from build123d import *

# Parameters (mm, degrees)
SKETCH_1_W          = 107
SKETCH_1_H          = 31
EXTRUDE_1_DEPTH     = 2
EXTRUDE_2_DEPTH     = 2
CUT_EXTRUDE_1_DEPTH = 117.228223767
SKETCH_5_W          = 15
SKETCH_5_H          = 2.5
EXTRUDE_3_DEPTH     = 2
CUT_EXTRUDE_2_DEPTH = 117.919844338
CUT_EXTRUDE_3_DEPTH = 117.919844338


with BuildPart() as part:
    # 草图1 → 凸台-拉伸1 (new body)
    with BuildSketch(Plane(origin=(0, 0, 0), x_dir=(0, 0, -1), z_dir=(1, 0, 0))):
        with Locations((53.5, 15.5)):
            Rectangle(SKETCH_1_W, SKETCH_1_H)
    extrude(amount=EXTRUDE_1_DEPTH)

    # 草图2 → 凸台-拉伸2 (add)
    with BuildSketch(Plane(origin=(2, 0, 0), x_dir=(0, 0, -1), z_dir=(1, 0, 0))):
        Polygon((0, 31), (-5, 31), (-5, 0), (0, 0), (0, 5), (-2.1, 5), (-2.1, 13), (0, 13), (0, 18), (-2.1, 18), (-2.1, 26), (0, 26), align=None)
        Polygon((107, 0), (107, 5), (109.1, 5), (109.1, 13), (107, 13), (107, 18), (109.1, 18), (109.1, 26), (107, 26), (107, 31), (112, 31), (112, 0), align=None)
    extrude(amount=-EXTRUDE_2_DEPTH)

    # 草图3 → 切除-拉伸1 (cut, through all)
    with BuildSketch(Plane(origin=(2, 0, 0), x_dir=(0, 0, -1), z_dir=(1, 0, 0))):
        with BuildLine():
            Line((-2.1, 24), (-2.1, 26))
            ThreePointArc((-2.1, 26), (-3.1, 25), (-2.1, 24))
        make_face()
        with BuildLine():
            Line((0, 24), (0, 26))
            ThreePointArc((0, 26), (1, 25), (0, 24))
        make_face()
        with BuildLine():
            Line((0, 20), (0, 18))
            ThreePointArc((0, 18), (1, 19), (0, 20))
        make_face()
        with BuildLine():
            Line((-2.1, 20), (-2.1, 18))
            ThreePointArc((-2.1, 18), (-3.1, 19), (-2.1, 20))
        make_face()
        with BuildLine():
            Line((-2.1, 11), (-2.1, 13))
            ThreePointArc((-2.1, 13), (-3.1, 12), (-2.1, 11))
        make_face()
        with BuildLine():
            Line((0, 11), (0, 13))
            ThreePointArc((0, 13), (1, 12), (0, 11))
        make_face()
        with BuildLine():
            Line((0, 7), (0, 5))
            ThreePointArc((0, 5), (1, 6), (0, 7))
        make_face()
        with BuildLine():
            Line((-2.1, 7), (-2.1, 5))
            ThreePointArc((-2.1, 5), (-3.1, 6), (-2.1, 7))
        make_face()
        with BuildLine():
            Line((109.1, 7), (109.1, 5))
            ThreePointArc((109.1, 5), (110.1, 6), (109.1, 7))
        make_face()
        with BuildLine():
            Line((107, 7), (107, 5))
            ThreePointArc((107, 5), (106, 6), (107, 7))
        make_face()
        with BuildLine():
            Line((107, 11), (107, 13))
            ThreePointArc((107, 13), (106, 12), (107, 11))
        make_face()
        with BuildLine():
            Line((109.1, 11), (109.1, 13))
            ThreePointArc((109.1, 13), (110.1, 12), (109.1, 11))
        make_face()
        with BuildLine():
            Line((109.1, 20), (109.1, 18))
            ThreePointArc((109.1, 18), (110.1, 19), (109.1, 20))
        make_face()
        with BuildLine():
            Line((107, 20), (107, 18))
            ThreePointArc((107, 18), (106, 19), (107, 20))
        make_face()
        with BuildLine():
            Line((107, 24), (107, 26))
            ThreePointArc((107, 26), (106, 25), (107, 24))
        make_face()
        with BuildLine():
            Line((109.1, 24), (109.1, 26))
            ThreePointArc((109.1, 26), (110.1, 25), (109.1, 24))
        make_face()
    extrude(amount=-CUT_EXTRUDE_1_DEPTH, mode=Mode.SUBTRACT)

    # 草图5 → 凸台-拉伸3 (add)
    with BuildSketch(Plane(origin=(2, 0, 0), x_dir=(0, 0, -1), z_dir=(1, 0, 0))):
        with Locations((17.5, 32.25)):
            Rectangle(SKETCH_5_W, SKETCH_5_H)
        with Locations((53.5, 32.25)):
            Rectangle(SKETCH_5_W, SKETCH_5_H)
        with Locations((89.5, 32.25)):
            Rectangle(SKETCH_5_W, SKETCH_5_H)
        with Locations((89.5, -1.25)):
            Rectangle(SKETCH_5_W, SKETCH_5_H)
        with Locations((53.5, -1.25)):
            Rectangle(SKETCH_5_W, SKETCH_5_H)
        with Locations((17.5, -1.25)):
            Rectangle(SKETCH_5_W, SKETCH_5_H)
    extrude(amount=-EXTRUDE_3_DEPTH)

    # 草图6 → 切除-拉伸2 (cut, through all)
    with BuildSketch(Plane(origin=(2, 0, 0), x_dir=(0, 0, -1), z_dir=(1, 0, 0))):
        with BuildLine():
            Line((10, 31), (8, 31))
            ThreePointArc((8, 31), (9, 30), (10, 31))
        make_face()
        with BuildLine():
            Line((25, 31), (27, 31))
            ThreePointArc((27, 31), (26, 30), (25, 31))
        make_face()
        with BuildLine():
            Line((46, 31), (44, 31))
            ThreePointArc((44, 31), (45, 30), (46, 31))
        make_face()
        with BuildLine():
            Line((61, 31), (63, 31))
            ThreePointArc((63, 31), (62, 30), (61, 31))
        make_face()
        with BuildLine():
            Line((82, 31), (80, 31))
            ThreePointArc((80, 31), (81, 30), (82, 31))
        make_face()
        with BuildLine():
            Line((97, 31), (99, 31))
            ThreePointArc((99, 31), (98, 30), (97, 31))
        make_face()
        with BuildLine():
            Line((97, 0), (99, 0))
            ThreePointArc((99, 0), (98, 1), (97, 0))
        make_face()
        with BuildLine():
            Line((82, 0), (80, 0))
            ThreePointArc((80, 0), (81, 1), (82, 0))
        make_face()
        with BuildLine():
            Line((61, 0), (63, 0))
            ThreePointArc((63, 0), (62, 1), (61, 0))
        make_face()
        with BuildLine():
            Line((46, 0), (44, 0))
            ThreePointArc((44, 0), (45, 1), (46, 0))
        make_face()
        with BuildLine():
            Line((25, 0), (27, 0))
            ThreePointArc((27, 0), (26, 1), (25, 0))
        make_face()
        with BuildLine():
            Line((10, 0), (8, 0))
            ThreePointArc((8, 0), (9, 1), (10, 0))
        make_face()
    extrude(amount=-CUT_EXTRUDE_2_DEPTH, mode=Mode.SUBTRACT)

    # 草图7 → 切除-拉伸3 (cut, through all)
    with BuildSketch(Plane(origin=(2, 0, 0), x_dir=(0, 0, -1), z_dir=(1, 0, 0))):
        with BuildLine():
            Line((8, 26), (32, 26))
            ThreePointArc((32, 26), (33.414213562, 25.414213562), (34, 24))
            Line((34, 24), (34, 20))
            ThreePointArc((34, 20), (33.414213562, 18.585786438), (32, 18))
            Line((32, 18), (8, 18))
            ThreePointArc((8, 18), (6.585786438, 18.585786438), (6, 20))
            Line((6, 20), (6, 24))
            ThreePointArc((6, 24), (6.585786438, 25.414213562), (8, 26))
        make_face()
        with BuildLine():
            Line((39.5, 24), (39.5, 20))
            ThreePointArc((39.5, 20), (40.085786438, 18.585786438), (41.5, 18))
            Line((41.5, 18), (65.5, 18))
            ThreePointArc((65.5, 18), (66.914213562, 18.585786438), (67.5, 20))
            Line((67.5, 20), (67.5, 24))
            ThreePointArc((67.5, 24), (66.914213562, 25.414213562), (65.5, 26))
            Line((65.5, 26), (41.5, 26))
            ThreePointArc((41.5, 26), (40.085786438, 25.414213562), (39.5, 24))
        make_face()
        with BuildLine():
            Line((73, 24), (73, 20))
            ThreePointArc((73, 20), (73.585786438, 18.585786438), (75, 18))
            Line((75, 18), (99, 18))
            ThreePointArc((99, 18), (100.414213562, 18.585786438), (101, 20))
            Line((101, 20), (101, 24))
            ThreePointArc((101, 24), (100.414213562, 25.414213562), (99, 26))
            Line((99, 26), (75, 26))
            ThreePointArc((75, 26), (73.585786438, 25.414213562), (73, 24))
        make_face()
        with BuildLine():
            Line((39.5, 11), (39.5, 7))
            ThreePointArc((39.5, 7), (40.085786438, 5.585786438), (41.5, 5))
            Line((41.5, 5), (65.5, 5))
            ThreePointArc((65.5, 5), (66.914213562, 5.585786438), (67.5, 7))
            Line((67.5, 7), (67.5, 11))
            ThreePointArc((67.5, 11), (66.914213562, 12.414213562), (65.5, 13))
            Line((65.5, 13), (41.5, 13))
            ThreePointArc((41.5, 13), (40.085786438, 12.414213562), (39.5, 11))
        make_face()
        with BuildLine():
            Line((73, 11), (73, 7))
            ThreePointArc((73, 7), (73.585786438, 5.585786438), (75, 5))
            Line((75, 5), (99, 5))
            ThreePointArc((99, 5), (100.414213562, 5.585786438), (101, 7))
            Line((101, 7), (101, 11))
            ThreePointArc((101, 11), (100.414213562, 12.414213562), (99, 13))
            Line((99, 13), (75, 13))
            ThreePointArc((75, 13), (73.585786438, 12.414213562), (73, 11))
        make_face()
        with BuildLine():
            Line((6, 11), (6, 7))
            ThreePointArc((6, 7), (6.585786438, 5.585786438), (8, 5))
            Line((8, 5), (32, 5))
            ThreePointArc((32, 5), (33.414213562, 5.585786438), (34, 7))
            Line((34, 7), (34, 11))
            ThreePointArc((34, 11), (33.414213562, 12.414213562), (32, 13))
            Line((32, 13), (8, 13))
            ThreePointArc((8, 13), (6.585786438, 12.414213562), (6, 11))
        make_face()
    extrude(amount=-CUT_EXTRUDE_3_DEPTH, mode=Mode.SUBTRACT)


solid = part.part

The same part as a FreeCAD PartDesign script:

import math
import FreeCAD as App
import Part
import Sketcher
Q = App.Units.Quantity

doc = App.newDocument("Part")
body = doc.addObject("PartDesign::Body", "Body")

# Sketch on YZ plane
sketch1 = doc.addObject("Sketcher::SketchObject", "Sketch")
body.addObject(sketch1)
sketch1.AttachmentSupport = (doc.YZ_Plane, [""])
sketch1.MapMode = "FlatFace"
sketch1.addGeometry([
    Part.LineSegment(App.Vector(31, 0, 0), App.Vector(0, 0, 0)),
    Part.LineSegment(App.Vector(0, 0, 0), App.Vector(0, -107, 0)),
    Part.LineSegment(App.Vector(0, -107, 0), App.Vector(31, -107, 0)),
    Part.LineSegment(App.Vector(31, -107, 0), App.Vector(31, 0, 0)),
], False)
sketch1.addConstraint([
    Sketcher.Constraint("Coincident", 0, 2, 1, 1),
    Sketcher.Constraint("Coincident", 1, 2, 2, 1),
    Sketcher.Constraint("Coincident", 2, 2, 3, 1),
    Sketcher.Constraint("Coincident", 3, 2, 0, 1),
    Sketcher.Constraint("Horizontal", 0),
    Sketcher.Constraint("Vertical", 1),
    Sketcher.Constraint("Horizontal", 2),
    Sketcher.Constraint("Vertical", 3),
    Sketcher.Constraint("Coincident", 0, 2, -1, 1),
    Sketcher.Constraint("DistanceX", 0, 2, 0, 1, Q("31 mm")),
    Sketcher.Constraint("DistanceY", 1, 2, 1, 1, Q("107 mm")),
])
pad1 = doc.addObject("PartDesign::Pad", "Pad")
body.addObject(pad1)
pad1.Profile = sketch1
pad1.Length = 2

# Sketch on YZ plane
sketch2 = doc.addObject("Sketcher::SketchObject", "Sketch001")
body.addObject(sketch2)
sketch2.AttachmentSupport = (doc.YZ_Plane, [""])
sketch2.MapMode = "FlatFace"
sketch2.AttachmentOffset = App.Placement(App.Vector(0, 0, 2), App.Rotation())
sketch2.addGeometry([
    Part.LineSegment(App.Vector(31, 0, 0), App.Vector(31, 5, 0)),  # 0
    Part.LineSegment(App.Vector(31, 5, 0), App.Vector(0, 5, 0)),  # 1
    Part.LineSegment(App.Vector(0, 5, 0), App.Vector(0, 0, 0)),  # 2
    Part.LineSegment(App.Vector(0, 0, 0), App.Vector(5, 0, 0)),  # 3
    Part.LineSegment(App.Vector(5, 0, 0), App.Vector(5, 2.1, 0)),  # 4
    Part.LineSegment(App.Vector(5, 2.1, 0), App.Vector(13, 2.1, 0)),  # 5
    Part.LineSegment(App.Vector(13, 2.1, 0), App.Vector(13, 0, 0)),  # 6
    Part.LineSegment(App.Vector(13, 0, 0), App.Vector(18, 0, 0)),  # 7
    Part.LineSegment(App.Vector(18, 0, 0), App.Vector(18, 2.1, 0)),  # 8
    Part.LineSegment(App.Vector(18, 2.1, 0), App.Vector(26, 2.1, 0)),  # 9
    Part.LineSegment(App.Vector(26, 2.1, 0), App.Vector(26, 0, 0)),  # 10
    Part.LineSegment(App.Vector(26, 0, 0), App.Vector(31, 0, 0)),  # 11
    Part.LineSegment(App.Vector(5, -107, 0), App.Vector(0, -107, 0)),  # 12
    Part.LineSegment(App.Vector(0, -107, 0), App.Vector(0, -112, 0)),  # 13
    Part.LineSegment(App.Vector(0, -112, 0), App.Vector(31, -112, 0)),  # 14
    Part.LineSegment(App.Vector(31, -112, 0), App.Vector(31, -107, 0)),  # 15
    Part.LineSegment(App.Vector(31, -107, 0), App.Vector(26, -107, 0)),  # 16
    Part.LineSegment(App.Vector(26, -107, 0), App.Vector(26, -109.1, 0)),  # 17
    Part.LineSegment(App.Vector(26, -109.1, 0), App.Vector(18, -109.1, 0)),  # 18
    Part.LineSegment(App.Vector(18, -109.1, 0), App.Vector(18, -107, 0)),  # 19
    Part.LineSegment(App.Vector(18, -107, 0), App.Vector(13, -107, 0)),  # 20
    Part.LineSegment(App.Vector(13, -107, 0), App.Vector(13, -109.1, 0)),  # 21
    Part.LineSegment(App.Vector(13, -109.1, 0), App.Vector(5, -109.1, 0)),  # 22
    Part.LineSegment(App.Vector(5, -109.1, 0), App.Vector(5, -107, 0)),  # 23
], False)
sketch2.addConstraint([
    Sketcher.Constraint("Coincident", 0, 2, 1, 1),
    Sketcher.Constraint("Coincident", 1, 2, 2, 1),
    Sketcher.Constraint("Coincident", 2, 2, 3, 1),
    Sketcher.Constraint("Coincident", 3, 2, 4, 1),
    Sketcher.Constraint("Coincident", 4, 2, 5, 1),
    Sketcher.Constraint("Coincident", 5, 2, 6, 1),
    Sketcher.Constraint("Coincident", 6, 2, 7, 1),
    Sketcher.Constraint("Coincident", 7, 2, 8, 1),
    Sketcher.Constraint("Coincident", 8, 2, 9, 1),
    Sketcher.Constraint("Coincident", 9, 2, 10, 1),
    Sketcher.Constraint("Coincident", 10, 2, 11, 1),
    Sketcher.Constraint("Coincident", 11, 2, 0, 1),
    Sketcher.Constraint("Coincident", 12, 2, 13, 1),
    Sketcher.Constraint("Coincident", 13, 2, 14, 1),
    Sketcher.Constraint("Coincident", 14, 2, 15, 1),
    Sketcher.Constraint("Coincident", 15, 2, 16, 1),
    Sketcher.Constraint("Coincident", 16, 2, 17, 1),
    Sketcher.Constraint("Coincident", 17, 2, 18, 1),
    Sketcher.Constraint("Coincident", 18, 2, 19, 1),
    Sketcher.Constraint("Coincident", 19, 2, 20, 1),
    Sketcher.Constraint("Coincident", 20, 2, 21, 1),
    Sketcher.Constraint("Coincident", 21, 2, 22, 1),
    Sketcher.Constraint("Coincident", 22, 2, 23, 1),
    Sketcher.Constraint("Coincident", 23, 2, 12, 1),
    Sketcher.Constraint("Vertical", 0),
    Sketcher.Constraint("Horizontal", 1),
    Sketcher.Constraint("Vertical", 2),
    Sketcher.Constraint("Horizontal", 3),
    Sketcher.Constraint("Vertical", 4),
    Sketcher.Constraint("Horizontal", 5),
    Sketcher.Constraint("Vertical", 6),
    Sketcher.Constraint("Horizontal", 7),
    Sketcher.Constraint("Vertical", 8),
    Sketcher.Constraint("Horizontal", 9),
    Sketcher.Constraint("Vertical", 10),
    Sketcher.Constraint("Horizontal", 11),
    Sketcher.Constraint("Horizontal", 12),
    Sketcher.Constraint("Vertical", 13),
    Sketcher.Constraint("Horizontal", 14),
    Sketcher.Constraint("Vertical", 15),
    Sketcher.Constraint("Horizontal", 16),
    Sketcher.Constraint("Vertical", 17),
    Sketcher.Constraint("Horizontal", 18),
    Sketcher.Constraint("Vertical", 19),
    Sketcher.Constraint("Horizontal", 20),
    Sketcher.Constraint("Vertical", 21),
    Sketcher.Constraint("Horizontal", 22),
    Sketcher.Constraint("Vertical", 23),
    Sketcher.Constraint("Coincident", 2, 2, -1, 1),
    Sketcher.Constraint("PointOnObject", 6, 2, -1),
    Sketcher.Constraint("PointOnObject", 10, 2, -1),
    Sketcher.Constraint("PointOnObject", 12, 2, -2),
    Sketcher.Constraint("Horizontal", 5, 2, 8, 2),
    Sketcher.Constraint("Horizontal", 12, 2, 15, 2),
    Sketcher.Constraint("Horizontal", 16, 2, 19, 2),
    Sketcher.Constraint("Horizontal", 18, 2, 21, 2),
    Sketcher.Constraint("Vertical", 11, 2, 14, 2),
    Sketcher.Constraint("Vertical", 10, 2, 16, 2),
    Sketcher.Constraint("Vertical", 8, 2, 18, 2),
    Sketcher.Constraint("Vertical", 6, 2, 20, 2),
    Sketcher.Constraint("Vertical", 4, 2, 22, 2),
    Sketcher.Constraint("Equal", 3, 7),
    Sketcher.Constraint("Equal", 5, 9),
    Sketcher.Constraint("Equal", 7, 11),
    Sketcher.Constraint("Equal", 20, 0),
    Sketcher.Constraint("Equal", 2, 13),
    Sketcher.Constraint("Equal", 10, 17),
    Sketcher.Constraint("DistanceX", 1, 2, 1, 1, Q("31 mm")),
    Sketcher.Constraint("DistanceX", 3, 1, 3, 2, Q("5 mm")),
    Sketcher.Constraint("DistanceY", 4, 1, 4, 2, Q("2.1 mm")),
    Sketcher.Constraint("DistanceY", 12, 2, -1, 1, Q("107 mm")),
])
pad2 = doc.addObject("PartDesign::Pad", "Pad001")
body.addObject(pad2)
pad2.Profile = sketch2
pad2.Length = 2
pad2.Reversed = True

# Sketch on YZ plane
sketch3 = doc.addObject("Sketcher::SketchObject", "Sketch002")
body.addObject(sketch3)
sketch3.AttachmentSupport = (doc.YZ_Plane, [""])
sketch3.MapMode = "FlatFace"
sketch3.AttachmentOffset = App.Placement(App.Vector(0, 0, 2), App.Rotation())
sketch3.addGeometry([
    Part.LineSegment(App.Vector(24, 2.1, 0), App.Vector(26, 2.1, 0)),  # 0
    Part.ArcOfCircle(Part.Circle(App.Vector(25, 2.1, 0), App.Vector(0, 0, 1), 1), math.radians(0), math.radians(180)),  # 1
    Part.LineSegment(App.Vector(26, 0, 0), App.Vector(24, 0, 0)),  # 2
    Part.ArcOfCircle(Part.Circle(App.Vector(25, 0, 0), App.Vector(0, 0, 1), 1), math.radians(180), math.radians(360)),  # 3
    Part.LineSegment(App.Vector(20, 0, 0), App.Vector(18, 0, 0)),  # 4
    Part.ArcOfCircle(Part.Circle(App.Vector(19, 0, 0), App.Vector(0, 0, 1), 1), math.radians(180), math.radians(360)),  # 5
    Part.LineSegment(App.Vector(18, 2.1, 0), App.Vector(20, 2.1, 0)),  # 6
    Part.ArcOfCircle(Part.Circle(App.Vector(19, 2.1, 0), App.Vector(0, 0, 1), 1), math.radians(0), math.radians(180)),  # 7
    Part.LineSegment(App.Vector(11, 2.1, 0), App.Vector(13, 2.1, 0)),  # 8
    Part.ArcOfCircle(Part.Circle(App.Vector(12, 2.1, 0), App.Vector(0, 0, 1), 1), math.radians(0), math.radians(180)),  # 9
    Part.LineSegment(App.Vector(13, 0, 0), App.Vector(11, 0, 0)),  # 10
    Part.ArcOfCircle(Part.Circle(App.Vector(12, 0, 0), App.Vector(0, 0, 1), 1), math.radians(180), math.radians(360)),  # 11
    Part.LineSegment(App.Vector(7, 0, 0), App.Vector(5, 0, 0)),  # 12
    Part.ArcOfCircle(Part.Circle(App.Vector(6, 0, 0), App.Vector(0, 0, 1), 1), math.radians(180), math.radians(360)),  # 13
    Part.LineSegment(App.Vector(5, 2.1, 0), App.Vector(7, 2.1, 0)),  # 14
    Part.ArcOfCircle(Part.Circle(App.Vector(6, 2.1, 0), App.Vector(0, 0, 1), 1), math.radians(0), math.radians(180)),  # 15
    Part.LineSegment(App.Vector(7, -109.1, 0), App.Vector(5, -109.1, 0)),  # 16
    Part.ArcOfCircle(Part.Circle(App.Vector(6, -109.1, 0), App.Vector(0, 0, 1), 1), math.radians(180), math.radians(360)),  # 17
    Part.LineSegment(App.Vector(5, -107, 0), App.Vector(7, -107, 0)),  # 18
    Part.ArcOfCircle(Part.Circle(App.Vector(6, -107, 0), App.Vector(0, 0, 1), 1), math.radians(0), math.radians(180)),  # 19
    Part.LineSegment(App.Vector(11, -107, 0), App.Vector(13, -107, 0)),  # 20
    Part.ArcOfCircle(Part.Circle(App.Vector(12, -107, 0), App.Vector(0, 0, 1), 1), math.radians(0), math.radians(180)),  # 21
    Part.LineSegment(App.Vector(13, -109.1, 0), App.Vector(11, -109.1, 0)),  # 22
    Part.ArcOfCircle(Part.Circle(App.Vector(12, -109.1, 0), App.Vector(0, 0, 1), 1), math.radians(180), math.radians(360)),  # 23
    Part.LineSegment(App.Vector(20, -109.1, 0), App.Vector(18, -109.1, 0)),  # 24
    Part.ArcOfCircle(Part.Circle(App.Vector(19, -109.1, 0), App.Vector(0, 0, 1), 1), math.radians(180), math.radians(360)),  # 25
    Part.LineSegment(App.Vector(18, -107, 0), App.Vector(20, -107, 0)),  # 26
    Part.ArcOfCircle(Part.Circle(App.Vector(19, -107, 0), App.Vector(0, 0, 1), 1), math.radians(0), math.radians(180)),  # 27
    Part.LineSegment(App.Vector(24, -107, 0), App.Vector(26, -107, 0)),  # 28
    Part.ArcOfCircle(Part.Circle(App.Vector(25, -107, 0), App.Vector(0, 0, 1), 1), math.radians(0), math.radians(180)),  # 29
    Part.LineSegment(App.Vector(26, -109.1, 0), App.Vector(24, -109.1, 0)),  # 30
    Part.ArcOfCircle(Part.Circle(App.Vector(25, -109.1, 0), App.Vector(0, 0, 1), 1), math.radians(180), math.radians(360)),  # 31
], False)
sketch3.addConstraint([
    Sketcher.Constraint("Coincident", 0, 1, 1, 2),
    Sketcher.Constraint("Coincident", 1, 1, 0, 2),
    Sketcher.Constraint("Coincident", 2, 1, 3, 2),
    Sketcher.Constraint("Coincident", 3, 1, 2, 2),
    Sketcher.Constraint("Coincident", 4, 1, 5, 2),
    Sketcher.Constraint("Coincident", 5, 1, 4, 2),
    Sketcher.Constraint("Coincident", 6, 1, 7, 2),
    Sketcher.Constraint("Coincident", 7, 1, 6, 2),
    Sketcher.Constraint("Coincident", 8, 1, 9, 2),
    Sketcher.Constraint("Coincident", 9, 1, 8, 2),
    Sketcher.Constraint("Coincident", 10, 1, 11, 2),
    Sketcher.Constraint("Coincident", 11, 1, 10, 2),
    Sketcher.Constraint("Coincident", 12, 1, 13, 2),
    Sketcher.Constraint("Coincident", 13, 1, 12, 2),
    Sketcher.Constraint("Coincident", 14, 1, 15, 2),
    Sketcher.Constraint("Coincident", 15, 1, 14, 2),
    Sketcher.Constraint("Coincident", 16, 1, 17, 2),
    Sketcher.Constraint("Coincident", 17, 1, 16, 2),
    Sketcher.Constraint("Coincident", 18, 1, 19, 2),
    Sketcher.Constraint("Coincident", 19, 1, 18, 2),
    Sketcher.Constraint("Coincident", 20, 1, 21, 2),
    Sketcher.Constraint("Coincident", 21, 1, 20, 2),
    Sketcher.Constraint("Coincident", 22, 1, 23, 2),
    Sketcher.Constraint("Coincident", 23, 1, 22, 2),
    Sketcher.Constraint("Coincident", 24, 1, 25, 2),
    Sketcher.Constraint("Coincident", 25, 1, 24, 2),
    Sketcher.Constraint("Coincident", 26, 1, 27, 2),
    Sketcher.Constraint("Coincident", 27, 1, 26, 2),
    Sketcher.Constraint("Coincident", 28, 1, 29, 2),
    Sketcher.Constraint("Coincident", 29, 1, 28, 2),
    Sketcher.Constraint("Coincident", 30, 1, 31, 2),
    Sketcher.Constraint("Coincident", 31, 1, 30, 2),
    Sketcher.Constraint("Horizontal", 0),
    Sketcher.Constraint("Horizontal", 2),
    Sketcher.Constraint("Horizontal", 4),
    Sketcher.Constraint("Horizontal", 6),
    Sketcher.Constraint("Horizontal", 8),
    Sketcher.Constraint("Horizontal", 10),
    Sketcher.Constraint("Horizontal", 12),
    Sketcher.Constraint("Horizontal", 14),
    Sketcher.Constraint("Horizontal", 16),
    Sketcher.Constraint("Horizontal", 18),
    Sketcher.Constraint("Horizontal", 20),
    Sketcher.Constraint("Horizontal", 22),
    Sketcher.Constraint("Horizontal", 24),
    Sketcher.Constraint("Horizontal", 26),
    Sketcher.Constraint("Horizontal", 28),
    Sketcher.Constraint("Horizontal", 30),
    Sketcher.Constraint("Equal", 1, 3),
    Sketcher.Constraint("Equal", 3, 5),
    Sketcher.Constraint("Equal", 5, 7),
    Sketcher.Constraint("Equal", 7, 9),
    Sketcher.Constraint("Equal", 9, 11),
    Sketcher.Constraint("Equal", 11, 13),
    Sketcher.Constraint("Equal", 13, 15),
    Sketcher.Constraint("Equal", 15, 17),
    Sketcher.Constraint("Equal", 17, 19),
    Sketcher.Constraint("Equal", 19, 21),
    Sketcher.Constraint("Equal", 21, 23),
    Sketcher.Constraint("Equal", 23, 25),
    Sketcher.Constraint("Equal", 25, 27),
    Sketcher.Constraint("Equal", 27, 29),
    Sketcher.Constraint("Equal", 29, 31),
    Sketcher.Constraint("PointOnObject", 3, 3, -1),
    Sketcher.Constraint("PointOnObject", 5, 3, -1),
    Sketcher.Constraint("PointOnObject", 11, 3, -1),
    Sketcher.Constraint("PointOnObject", 13, 3, -1),
    Sketcher.Constraint("PointOnObject", 2, 1, -1),
    Sketcher.Constraint("PointOnObject", 4, 1, -1),
    Sketcher.Constraint("PointOnObject", 10, 1, -1),
    Sketcher.Constraint("PointOnObject", 12, 1, -1),
    Sketcher.Constraint("Horizontal", 1, 3, 7, 3),
    Sketcher.Constraint("Horizontal", 7, 3, 9, 3),
    Sketcher.Constraint("Horizontal", 9, 3, 15, 3),
    Sketcher.Constraint("Horizontal", 19, 3, 21, 3),
    Sketcher.Constraint("Horizontal", 17, 3, 23, 3),
    Sketcher.Constraint("Horizontal", 23, 3, 25, 3),
    Sketcher.Constraint("Horizontal", 21, 3, 27, 3),
    Sketcher.Constraint("Horizontal", 27, 3, 29, 3),
    Sketcher.Constraint("Horizontal", 25, 3, 31, 3),
    Sketcher.Constraint("Horizontal", 15, 3, 0, 1),
    Sketcher.Constraint("Horizontal", 1, 1, 6, 1),
    Sketcher.Constraint("Horizontal", 7, 1, 8, 1),
    Sketcher.Constraint("Horizontal", 9, 1, 14, 1),
    Sketcher.Constraint("Horizontal", 31, 3, 16, 1),
    Sketcher.Constraint("Horizontal", 29, 3, 18, 1),
    Sketcher.Constraint("Horizontal", 19, 1, 20, 1),
    Sketcher.Constraint("Horizontal", 17, 1, 22, 1),
    Sketcher.Constraint("Horizontal", 23, 1, 24, 1),
    Sketcher.Constraint("Horizontal", 21, 1, 26, 1),
    Sketcher.Constraint("Horizontal", 27, 1, 28, 1),
    Sketcher.Constraint("Horizontal", 25, 1, 30, 1),
    Sketcher.Constraint("Vertical", 1, 3, 3, 3),
    Sketcher.Constraint("Vertical", 5, 3, 7, 3),
    Sketcher.Constraint("Vertical", 9, 3, 11, 3),
    Sketcher.Constraint("Vertical", 13, 3, 15, 3),
    Sketcher.Constraint("Vertical", 15, 3, 17, 3),
    Sketcher.Constraint("Vertical", 17, 3, 19, 3),
    Sketcher.Constraint("Vertical", 11, 3, 21, 3),
    Sketcher.Constraint("Vertical", 21, 3, 23, 3),
    Sketcher.Constraint("Vertical", 7, 3, 25, 3),
    Sketcher.Constraint("Vertical", 25, 3, 27, 3),
    Sketcher.Constraint("Vertical", 3, 3, 29, 3),
    Sketcher.Constraint("Vertical", 29, 3, 31, 3),
    Sketcher.Constraint("Radius", 1, Q("1 mm")),
    Sketcher.Constraint("DistanceX", -1, 1, 1, 3, Q("25 mm")),
    Sketcher.Constraint("DistanceX", -1, 1, 5, 3, Q("19 mm")),
    Sketcher.Constraint("DistanceX", -1, 1, 9, 3, Q("12 mm")),
    Sketcher.Constraint("DistanceX", -1, 1, 13, 3, Q("6 mm")),
    Sketcher.Constraint("DistanceY", 19, 3, -1, 1, Q("107 mm")),
    Sketcher.Constraint("DistanceY", -1, 1, 1, 3, Q("2.1 mm")),
    Sketcher.Constraint("DistanceY", 17, 3, -1, 1, Q("109.1 mm")),
])
pocket1 = doc.addObject("PartDesign::Pocket", "Pocket")
body.addObject(pocket1)
pocket1.Profile = sketch3
pocket1.Type = "ThroughAll"

# Sketch on YZ plane
sketch4 = doc.addObject("Sketcher::SketchObject", "Sketch003")
body.addObject(sketch4)
sketch4.AttachmentSupport = (doc.YZ_Plane, [""])
sketch4.MapMode = "FlatFace"
sketch4.AttachmentOffset = App.Placement(App.Vector(0, 0, 2), App.Rotation())
sketch4.addGeometry([
    Part.LineSegment(App.Vector(33.5, -10, 0), App.Vector(31, -10, 0)),  # 0
    Part.LineSegment(App.Vector(31, -10, 0), App.Vector(31, -25, 0)),  # 1
    Part.LineSegment(App.Vector(31, -25, 0), App.Vector(33.5, -25, 0)),  # 2
    Part.LineSegment(App.Vector(33.5, -25, 0), App.Vector(33.5, -10, 0)),  # 3
    Part.LineSegment(App.Vector(33.5, -46, 0), App.Vector(31, -46, 0)),  # 4
    Part.LineSegment(App.Vector(31, -46, 0), App.Vector(31, -61, 0)),  # 5
    Part.LineSegment(App.Vector(31, -61, 0), App.Vector(33.5, -61, 0)),  # 6
    Part.LineSegment(App.Vector(33.5, -61, 0), App.Vector(33.5, -46, 0)),  # 7
    Part.LineSegment(App.Vector(33.5, -82, 0), App.Vector(31, -82, 0)),  # 8
    Part.LineSegment(App.Vector(31, -82, 0), App.Vector(31, -97, 0)),  # 9
    Part.LineSegment(App.Vector(31, -97, 0), App.Vector(33.5, -97, 0)),  # 10
    Part.LineSegment(App.Vector(33.5, -97, 0), App.Vector(33.5, -82, 0)),  # 11
    Part.LineSegment(App.Vector(0, -82, 0), App.Vector(-2.5, -82, 0)),  # 12
    Part.LineSegment(App.Vector(-2.5, -82, 0), App.Vector(-2.5, -97, 0)),  # 13
    Part.LineSegment(App.Vector(-2.5, -97, 0), App.Vector(0, -97, 0)),  # 14
    Part.LineSegment(App.Vector(0, -97, 0), App.Vector(0, -82, 0)),  # 15
    Part.LineSegment(App.Vector(0, -46, 0), App.Vector(-2.5, -46, 0)),  # 16
    Part.LineSegment(App.Vector(-2.5, -46, 0), App.Vector(-2.5, -61, 0)),  # 17
    Part.LineSegment(App.Vector(-2.5, -61, 0), App.Vector(0, -61, 0)),  # 18
    Part.LineSegment(App.Vector(0, -61, 0), App.Vector(0, -46, 0)),  # 19
    Part.LineSegment(App.Vector(0, -10, 0), App.Vector(-2.5, -10, 0)),  # 20
    Part.LineSegment(App.Vector(-2.5, -10, 0), App.Vector(-2.5, -25, 0)),  # 21
    Part.LineSegment(App.Vector(-2.5, -25, 0), App.Vector(0, -25, 0)),  # 22
    Part.LineSegment(App.Vector(0, -25, 0), App.Vector(0, -10, 0)),  # 23
], False)
sketch4.addConstraint([
    Sketcher.Constraint("Coincident", 0, 2, 1, 1),
    Sketcher.Constraint("Coincident", 1, 2, 2, 1),
    Sketcher.Constraint("Coincident", 2, 2, 3, 1),
    Sketcher.Constraint("Coincident", 3, 2, 0, 1),
    Sketcher.Constraint("Coincident", 4, 2, 5, 1),
    Sketcher.Constraint("Coincident", 5, 2, 6, 1),
    Sketcher.Constraint("Coincident", 6, 2, 7, 1),
    Sketcher.Constraint("Coincident", 7, 2, 4, 1),
    Sketcher.Constraint("Coincident", 8, 2, 9, 1),
    Sketcher.Constraint("Coincident", 9, 2, 10, 1),
    Sketcher.Constraint("Coincident", 10, 2, 11, 1),
    Sketcher.Constraint("Coincident", 11, 2, 8, 1),
    Sketcher.Constraint("Coincident", 12, 2, 13, 1),
    Sketcher.Constraint("Coincident", 13, 2, 14, 1),
    Sketcher.Constraint("Coincident", 14, 2, 15, 1),
    Sketcher.Constraint("Coincident", 15, 2, 12, 1),
    Sketcher.Constraint("Coincident", 16, 2, 17, 1),
    Sketcher.Constraint("Coincident", 17, 2, 18, 1),
    Sketcher.Constraint("Coincident", 18, 2, 19, 1),
    Sketcher.Constraint("Coincident", 19, 2, 16, 1),
    Sketcher.Constraint("Coincident", 20, 2, 21, 1),
    Sketcher.Constraint("Coincident", 21, 2, 22, 1),
    Sketcher.Constraint("Coincident", 22, 2, 23, 1),
    Sketcher.Constraint("Coincident", 23, 2, 20, 1),
    Sketcher.Constraint("Horizontal", 0),
    Sketcher.Constraint("Vertical", 1),
    Sketcher.Constraint("Horizontal", 2),
    Sketcher.Constraint("Vertical", 3),
    Sketcher.Constraint("Horizontal", 4),
    Sketcher.Constraint("Vertical", 5),
    Sketcher.Constraint("Horizontal", 6),
    Sketcher.Constraint("Vertical", 7),
    Sketcher.Constraint("Horizontal", 8),
    Sketcher.Constraint("Vertical", 9),
    Sketcher.Constraint("Horizontal", 10),
    Sketcher.Constraint("Vertical", 11),
    Sketcher.Constraint("Horizontal", 12),
    Sketcher.Constraint("Vertical", 13),
    Sketcher.Constraint("Horizontal", 14),
    Sketcher.Constraint("Vertical", 15),
    Sketcher.Constraint("Horizontal", 16),
    Sketcher.Constraint("Vertical", 17),
    Sketcher.Constraint("Horizontal", 18),
    Sketcher.Constraint("Vertical", 19),
    Sketcher.Constraint("Horizontal", 20),
    Sketcher.Constraint("Vertical", 21),
    Sketcher.Constraint("Horizontal", 22),
    Sketcher.Constraint("Vertical", 23),
    Sketcher.Constraint("PointOnObject", 14, 2, -2),
    Sketcher.Constraint("PointOnObject", 18, 2, -2),
    Sketcher.Constraint("PointOnObject", 22, 2, -2),
    Sketcher.Constraint("Horizontal", 11, 2, 12, 2),
    Sketcher.Constraint("Horizontal", 10, 2, 13, 2),
    Sketcher.Constraint("Horizontal", 7, 2, 16, 2),
    Sketcher.Constraint("Horizontal", 6, 2, 17, 2),
    Sketcher.Constraint("Horizontal", 3, 2, 20, 2),
    Sketcher.Constraint("Horizontal", 2, 2, 21, 2),
    Sketcher.Constraint("Vertical", 1, 2, 4, 2),
    Sketcher.Constraint("Vertical", 3, 2, 6, 2),
    Sketcher.Constraint("Vertical", 5, 2, 8, 2),
    Sketcher.Constraint("Vertical", 7, 2, 10, 2),
    Sketcher.Constraint("Vertical", 13, 2, 16, 2),
    Sketcher.Constraint("Vertical", 17, 2, 20, 2),
    Sketcher.Constraint("Equal", 10, 12),
    Sketcher.Constraint("Equal", 3, 5),
    Sketcher.Constraint("Equal", 7, 9),
    Sketcher.Constraint("DistanceY", 1, 2, 1, 1, Q("15 mm")),
    Sketcher.Constraint("DistanceX", 0, 2, 0, 1, Q("2.5 mm")),
    Sketcher.Constraint("DistanceX", -1, 1, 0, 2, Q("31 mm")),
    Sketcher.Constraint("DistanceY", 0, 2, -1, 1, Q("10 mm")),
    Sketcher.Constraint("DistanceY", 4, 2, -1, 1, Q("46 mm")),
    Sketcher.Constraint("DistanceY", 8, 2, -1, 1, Q("82 mm")),
])
pad3 = doc.addObject("PartDesign::Pad", "Pad002")
body.addObject(pad3)
pad3.Profile = sketch4
pad3.Length = 2
pad3.Reversed = True

# Sketch on YZ plane
sketch5 = doc.addObject("Sketcher::SketchObject", "Sketch004")
body.addObject(sketch5)
sketch5.AttachmentSupport = (doc.YZ_Plane, [""])
sketch5.MapMode = "FlatFace"
sketch5.AttachmentOffset = App.Placement(App.Vector(0, 0, 2), App.Rotation())
sketch5.addGeometry([
    Part.LineSegment(App.Vector(31, -10, 0), App.Vector(31, -8, 0)),  # 0
    Part.ArcOfCircle(Part.Circle(App.Vector(31, -9, 0), App.Vector(0, 0, 1), 1), math.radians(90), math.radians(270)),  # 1
    Part.LineSegment(App.Vector(31, -27, 0), App.Vector(31, -25, 0)),  # 2
    Part.ArcOfCircle(Part.Circle(App.Vector(31, -26, 0), App.Vector(0, 0, 1), 1), math.radians(90), math.radians(270)),  # 3
    Part.LineSegment(App.Vector(31, -46, 0), App.Vector(31, -44, 0)),  # 4
    Part.ArcOfCircle(Part.Circle(App.Vector(31, -45, 0), App.Vector(0, 0, 1), 1), math.radians(90), math.radians(270)),  # 5
    Part.LineSegment(App.Vector(31, -63, 0), App.Vector(31, -61, 0)),  # 6
    Part.ArcOfCircle(Part.Circle(App.Vector(31, -62, 0), App.Vector(0, 0, 1), 1), math.radians(90), math.radians(270)),  # 7
    Part.LineSegment(App.Vector(31, -82, 0), App.Vector(31, -80, 0)),  # 8
    Part.ArcOfCircle(Part.Circle(App.Vector(31, -81, 0), App.Vector(0, 0, 1), 1), math.radians(90), math.radians(270)),  # 9
    Part.LineSegment(App.Vector(31, -99, 0), App.Vector(31, -97, 0)),  # 10
    Part.ArcOfCircle(Part.Circle(App.Vector(31, -98, 0), App.Vector(0, 0, 1), 1), math.radians(90), math.radians(270)),  # 11
    Part.LineSegment(App.Vector(0, -97, 0), App.Vector(0, -99, 0)),  # 12
    Part.ArcOfCircle(Part.Circle(App.Vector(0, -98, 0), App.Vector(0, 0, 1), 1), math.radians(-90), math.radians(90)),  # 13
    Part.LineSegment(App.Vector(0, -80, 0), App.Vector(0, -82, 0)),  # 14
    Part.ArcOfCircle(Part.Circle(App.Vector(0, -81, 0), App.Vector(0, 0, 1), 1), math.radians(-90), math.radians(90)),  # 15
    Part.LineSegment(App.Vector(0, -61, 0), App.Vector(0, -63, 0)),  # 16
    Part.ArcOfCircle(Part.Circle(App.Vector(0, -62, 0), App.Vector(0, 0, 1), 1), math.radians(-90), math.radians(90)),  # 17
    Part.LineSegment(App.Vector(0, -44, 0), App.Vector(0, -46, 0)),  # 18
    Part.ArcOfCircle(Part.Circle(App.Vector(0, -45, 0), App.Vector(0, 0, 1), 1), math.radians(-90), math.radians(90)),  # 19
    Part.LineSegment(App.Vector(0, -25, 0), App.Vector(0, -27, 0)),  # 20
    Part.ArcOfCircle(Part.Circle(App.Vector(0, -26, 0), App.Vector(0, 0, 1), 1), math.radians(-90), math.radians(90)),  # 21
    Part.LineSegment(App.Vector(0, -8, 0), App.Vector(0, -10, 0)),  # 22
    Part.ArcOfCircle(Part.Circle(App.Vector(0, -9, 0), App.Vector(0, 0, 1), 1), math.radians(-90), math.radians(90)),  # 23
], False)
sketch5.addConstraint([
    Sketcher.Constraint("Coincident", 0, 1, 1, 2),
    Sketcher.Constraint("Coincident", 1, 1, 0, 2),
    Sketcher.Constraint("Coincident", 2, 1, 3, 2),
    Sketcher.Constraint("Coincident", 3, 1, 2, 2),
    Sketcher.Constraint("Coincident", 4, 1, 5, 2),
    Sketcher.Constraint("Coincident", 5, 1, 4, 2),
    Sketcher.Constraint("Coincident", 6, 1, 7, 2),
    Sketcher.Constraint("Coincident", 7, 1, 6, 2),
    Sketcher.Constraint("Coincident", 8, 1, 9, 2),
    Sketcher.Constraint("Coincident", 9, 1, 8, 2),
    Sketcher.Constraint("Coincident", 10, 1, 11, 2),
    Sketcher.Constraint("Coincident", 11, 1, 10, 2),
    Sketcher.Constraint("Coincident", 12, 1, 13, 2),
    Sketcher.Constraint("Coincident", 13, 1, 12, 2),
    Sketcher.Constraint("Coincident", 14, 1, 15, 2),
    Sketcher.Constraint("Coincident", 15, 1, 14, 2),
    Sketcher.Constraint("Coincident", 16, 1, 17, 2),
    Sketcher.Constraint("Coincident", 17, 1, 16, 2),
    Sketcher.Constraint("Coincident", 18, 1, 19, 2),
    Sketcher.Constraint("Coincident", 19, 1, 18, 2),
    Sketcher.Constraint("Coincident", 20, 1, 21, 2),
    Sketcher.Constraint("Coincident", 21, 1, 20, 2),
    Sketcher.Constraint("Coincident", 22, 1, 23, 2),
    Sketcher.Constraint("Coincident", 23, 1, 22, 2),
    Sketcher.Constraint("Vertical", 0),
    Sketcher.Constraint("Vertical", 2),
    Sketcher.Constraint("Vertical", 4),
    Sketcher.Constraint("Vertical", 6),
    Sketcher.Constraint("Vertical", 8),
    Sketcher.Constraint("Vertical", 10),
    Sketcher.Constraint("Vertical", 12),
    Sketcher.Constraint("Vertical", 14),
    Sketcher.Constraint("Vertical", 16),
    Sketcher.Constraint("Vertical", 18),
    Sketcher.Constraint("Vertical", 20),
    Sketcher.Constraint("Vertical", 22),
    Sketcher.Constraint("Equal", 1, 3),
    Sketcher.Constraint("Equal", 3, 5),
    Sketcher.Constraint("Equal", 5, 7),
    Sketcher.Constraint("Equal", 7, 9),
    Sketcher.Constraint("Equal", 9, 11),
    Sketcher.Constraint("Equal", 11, 13),
    Sketcher.Constraint("Equal", 13, 15),
    Sketcher.Constraint("Equal", 15, 17),
    Sketcher.Constraint("Equal", 17, 19),
    Sketcher.Constraint("Equal", 19, 21),
    Sketcher.Constraint("Equal", 21, 23),
    Sketcher.Constraint("PointOnObject", 13, 3, -2),
    Sketcher.Constraint("PointOnObject", 15, 3, -2),
    Sketcher.Constraint("PointOnObject", 17, 3, -2),
    Sketcher.Constraint("PointOnObject", 19, 3, -2),
    Sketcher.Constraint("PointOnObject", 21, 3, -2),
    Sketcher.Constraint("PointOnObject", 23, 3, -2),
    Sketcher.Constraint("PointOnObject", 12, 1, -2),
    Sketcher.Constraint("PointOnObject", 14, 1, -2),
    Sketcher.Constraint("PointOnObject", 16, 1, -2),
    Sketcher.Constraint("PointOnObject", 18, 1, -2),
    Sketcher.Constraint("PointOnObject", 20, 1, -2),
    Sketcher.Constraint("PointOnObject", 22, 1, -2),
    Sketcher.Constraint("Horizontal", 11, 3, 13, 3),
    Sketcher.Constraint("Horizontal", 9, 3, 15, 3),
    Sketcher.Constraint("Horizontal", 7, 3, 17, 3),
    Sketcher.Constraint("Horizontal", 5, 3, 19, 3),
    Sketcher.Constraint("Horizontal", 3, 3, 21, 3),
    Sketcher.Constraint("Horizontal", 1, 3, 23, 3),
    Sketcher.Constraint("Vertical", 1, 3, 3, 3),
    Sketcher.Constraint("Vertical", 3, 3, 5, 3),
    Sketcher.Constraint("Vertical", 5, 3, 7, 3),
    Sketcher.Constraint("Vertical", 7, 3, 9, 3),
    Sketcher.Constraint("Vertical", 9, 3, 11, 3),
    Sketcher.Constraint("Vertical", 11, 3, 0, 1),
    Sketcher.Constraint("Vertical", 1, 1, 2, 1),
    Sketcher.Constraint("Vertical", 3, 1, 4, 1),
    Sketcher.Constraint("Vertical", 5, 1, 6, 1),
    Sketcher.Constraint("Vertical", 7, 1, 8, 1),
    Sketcher.Constraint("Vertical", 9, 1, 10, 1),
    Sketcher.Constraint("Radius", 1, Q("1 mm")),
    Sketcher.Constraint("DistanceX", -1, 1, 1, 3, Q("31 mm")),
    Sketcher.Constraint("DistanceY", 1, 3, -1, 1, Q("9 mm")),
    Sketcher.Constraint("DistanceY", 3, 3, -1, 1, Q("26 mm")),
    Sketcher.Constraint("DistanceY", 5, 3, -1, 1, Q("45 mm")),
    Sketcher.Constraint("DistanceY", 7, 3, -1, 1, Q("62 mm")),
    Sketcher.Constraint("DistanceY", 9, 3, -1, 1, Q("81 mm")),
    Sketcher.Constraint("DistanceY", 11, 3, -1, 1, Q("98 mm")),
])
pocket2 = doc.addObject("PartDesign::Pocket", "Pocket001")
body.addObject(pocket2)
pocket2.Profile = sketch5
pocket2.Type = "ThroughAll"

# Sketch on YZ plane
sketch6 = doc.addObject("Sketcher::SketchObject", "Sketch005")
body.addObject(sketch6)
sketch6.AttachmentSupport = (doc.YZ_Plane, [""])
sketch6.MapMode = "FlatFace"
sketch6.AttachmentOffset = App.Placement(App.Vector(0, 0, 2), App.Rotation())
sketch6.addGeometry([
    Part.LineSegment(App.Vector(26, -32, 0), App.Vector(26, -8, 0)),  # 0
    Part.ArcOfCircle(Part.Circle(App.Vector(24, -8, 0), App.Vector(0, 0, 1), 2), math.radians(0), math.radians(90)),  # 1
    Part.LineSegment(App.Vector(24, -6, 0), App.Vector(20, -6, 0)),  # 2
    Part.ArcOfCircle(Part.Circle(App.Vector(20, -8, 0), App.Vector(0, 0, 1), 2), math.radians(90), math.radians(180)),  # 3
    Part.LineSegment(App.Vector(18, -8, 0), App.Vector(18, -32, 0)),  # 4
    Part.ArcOfCircle(Part.Circle(App.Vector(20, -32, 0), App.Vector(0, 0, 1), 2), math.radians(-180), math.radians(-90)),  # 5
    Part.LineSegment(App.Vector(20, -34, 0), App.Vector(24, -34, 0)),  # 6
    Part.ArcOfCircle(Part.Circle(App.Vector(24, -32, 0), App.Vector(0, 0, 1), 2), math.radians(-90), math.radians(0)),  # 7
    Part.LineSegment(App.Vector(24, -39.5, 0), App.Vector(20, -39.5, 0)),  # 8
    Part.ArcOfCircle(Part.Circle(App.Vector(20, -41.5, 0), App.Vector(0, 0, 1), 2), math.radians(90), math.radians(180)),  # 9
    Part.LineSegment(App.Vector(18, -41.5, 0), App.Vector(18, -65.5, 0)),  # 10
    Part.ArcOfCircle(Part.Circle(App.Vector(20, -65.5, 0), App.Vector(0, 0, 1), 2), math.radians(-180), math.radians(-90)),  # 11
    Part.LineSegment(App.Vector(20, -67.5, 0), App.Vector(24, -67.5, 0)),  # 12
    Part.ArcOfCircle(Part.Circle(App.Vector(24, -65.5, 0), App.Vector(0, 0, 1), 2), math.radians(-90), math.radians(0)),  # 13
    Part.LineSegment(App.Vector(26, -65.5, 0), App.Vector(26, -41.5, 0)),  # 14
    Part.ArcOfCircle(Part.Circle(App.Vector(24, -41.5, 0), App.Vector(0, 0, 1), 2), math.radians(0), math.radians(90)),  # 15
    Part.LineSegment(App.Vector(24, -73, 0), App.Vector(20, -73, 0)),  # 16
    Part.ArcOfCircle(Part.Circle(App.Vector(20, -75, 0), App.Vector(0, 0, 1), 2), math.radians(90), math.radians(180)),  # 17
    Part.LineSegment(App.Vector(18, -75, 0), App.Vector(18, -99, 0)),  # 18
    Part.ArcOfCircle(Part.Circle(App.Vector(20, -99, 0), App.Vector(0, 0, 1), 2), math.radians(-180), math.radians(-90)),  # 19
    Part.LineSegment(App.Vector(20, -101, 0), App.Vector(24, -101, 0)),  # 20
    Part.ArcOfCircle(Part.Circle(App.Vector(24, -99, 0), App.Vector(0, 0, 1), 2), math.radians(-90), math.radians(0)),  # 21
    Part.LineSegment(App.Vector(26, -99, 0), App.Vector(26, -75, 0)),  # 22
    Part.ArcOfCircle(Part.Circle(App.Vector(24, -75, 0), App.Vector(0, 0, 1), 2), math.radians(0), math.radians(90)),  # 23
    Part.LineSegment(App.Vector(11, -39.5, 0), App.Vector(7, -39.5, 0)),  # 24
    Part.ArcOfCircle(Part.Circle(App.Vector(7, -41.5, 0), App.Vector(0, 0, 1), 2), math.radians(90), math.radians(180)),  # 25
    Part.LineSegment(App.Vector(5, -41.5, 0), App.Vector(5, -65.5, 0)),  # 26
    Part.ArcOfCircle(Part.Circle(App.Vector(7, -65.5, 0), App.Vector(0, 0, 1), 2), math.radians(-180), math.radians(-90)),  # 27
    Part.LineSegment(App.Vector(7, -67.5, 0), App.Vector(11, -67.5, 0)),  # 28
    Part.ArcOfCircle(Part.Circle(App.Vector(11, -65.5, 0), App.Vector(0, 0, 1), 2), math.radians(-90), math.radians(0)),  # 29
    Part.LineSegment(App.Vector(13, -65.5, 0), App.Vector(13, -41.5, 0)),  # 30
    Part.ArcOfCircle(Part.Circle(App.Vector(11, -41.5, 0), App.Vector(0, 0, 1), 2), math.radians(0), math.radians(90)),  # 31
    Part.LineSegment(App.Vector(11, -73, 0), App.Vector(7, -73, 0)),  # 32
    Part.ArcOfCircle(Part.Circle(App.Vector(7, -75, 0), App.Vector(0, 0, 1), 2), math.radians(90), math.radians(180)),  # 33
    Part.LineSegment(App.Vector(5, -75, 0), App.Vector(5, -99, 0)),  # 34
    Part.ArcOfCircle(Part.Circle(App.Vector(7, -99, 0), App.Vector(0, 0, 1), 2), math.radians(-180), math.radians(-90)),  # 35
    Part.LineSegment(App.Vector(7, -101, 0), App.Vector(11, -101, 0)),  # 36
    Part.ArcOfCircle(Part.Circle(App.Vector(11, -99, 0), App.Vector(0, 0, 1), 2), math.radians(-90), math.radians(0)),  # 37
    Part.LineSegment(App.Vector(13, -99, 0), App.Vector(13, -75, 0)),  # 38
    Part.ArcOfCircle(Part.Circle(App.Vector(11, -75, 0), App.Vector(0, 0, 1), 2), math.radians(0), math.radians(90)),  # 39
    Part.LineSegment(App.Vector(11, -6, 0), App.Vector(7, -6, 0)),  # 40
    Part.ArcOfCircle(Part.Circle(App.Vector(7, -8, 0), App.Vector(0, 0, 1), 2), math.radians(90), math.radians(180)),  # 41
    Part.LineSegment(App.Vector(5, -8, 0), App.Vector(5, -32, 0)),  # 42
    Part.ArcOfCircle(Part.Circle(App.Vector(7, -32, 0), App.Vector(0, 0, 1), 2), math.radians(-180), math.radians(-90)),  # 43
    Part.LineSegment(App.Vector(7, -34, 0), App.Vector(11, -34, 0)),  # 44
    Part.ArcOfCircle(Part.Circle(App.Vector(11, -32, 0), App.Vector(0, 0, 1), 2), math.radians(-90), math.radians(0)),  # 45
    Part.LineSegment(App.Vector(13, -32, 0), App.Vector(13, -8, 0)),  # 46
    Part.ArcOfCircle(Part.Circle(App.Vector(11, -8, 0), App.Vector(0, 0, 1), 2), math.radians(0), math.radians(90)),  # 47
], False)
sketch6.addConstraint([
    Sketcher.Constraint("Tangent", 0, 2, 1, 1),
    Sketcher.Constraint("Tangent", 1, 2, 2, 1),
    Sketcher.Constraint("Tangent", 2, 2, 3, 1),
    Sketcher.Constraint("Tangent", 3, 2, 4, 1),
    Sketcher.Constraint("Tangent", 4, 2, 5, 1),
    Sketcher.Constraint("Tangent", 5, 2, 6, 1),
    Sketcher.Constraint("Tangent", 6, 2, 7, 1),
    Sketcher.Constraint("Tangent", 7, 2, 0, 1),
    Sketcher.Constraint("Tangent", 8, 2, 9, 1),
    Sketcher.Constraint("Tangent", 9, 2, 10, 1),
    Sketcher.Constraint("Tangent", 10, 2, 11, 1),
    Sketcher.Constraint("Tangent", 11, 2, 12, 1),
    Sketcher.Constraint("Tangent", 12, 2, 13, 1),
    Sketcher.Constraint("Tangent", 13, 2, 14, 1),
    Sketcher.Constraint("Tangent", 14, 2, 15, 1),
    Sketcher.Constraint("Tangent", 15, 2, 8, 1),
    Sketcher.Constraint("Tangent", 16, 2, 17, 1),
    Sketcher.Constraint("Tangent", 17, 2, 18, 1),
    Sketcher.Constraint("Tangent", 18, 2, 19, 1),
    Sketcher.Constraint("Tangent", 19, 2, 20, 1),
    Sketcher.Constraint("Tangent", 20, 2, 21, 1),
    Sketcher.Constraint("Tangent", 21, 2, 22, 1),
    Sketcher.Constraint("Tangent", 22, 2, 23, 1),
    Sketcher.Constraint("Tangent", 23, 2, 16, 1),
    Sketcher.Constraint("Tangent", 24, 2, 25, 1),
    Sketcher.Constraint("Tangent", 25, 2, 26, 1),
    Sketcher.Constraint("Tangent", 26, 2, 27, 1),
    Sketcher.Constraint("Tangent", 27, 2, 28, 1),
    Sketcher.Constraint("Tangent", 28, 2, 29, 1),
    Sketcher.Constraint("Tangent", 29, 2, 30, 1),
    Sketcher.Constraint("Tangent", 30, 2, 31, 1),
    Sketcher.Constraint("Tangent", 31, 2, 24, 1),
    Sketcher.Constraint("Tangent", 32, 2, 33, 1),
    Sketcher.Constraint("Tangent", 33, 2, 34, 1),
    Sketcher.Constraint("Tangent", 34, 2, 35, 1),
    Sketcher.Constraint("Tangent", 35, 2, 36, 1),
    Sketcher.Constraint("Tangent", 36, 2, 37, 1),
    Sketcher.Constraint("Tangent", 37, 2, 38, 1),
    Sketcher.Constraint("Tangent", 38, 2, 39, 1),
    Sketcher.Constraint("Tangent", 39, 2, 32, 1),
    Sketcher.Constraint("Tangent", 40, 2, 41, 1),
    Sketcher.Constraint("Tangent", 41, 2, 42, 1),
    Sketcher.Constraint("Tangent", 42, 2, 43, 1),
    Sketcher.Constraint("Tangent", 43, 2, 44, 1),
    Sketcher.Constraint("Tangent", 44, 2, 45, 1),
    Sketcher.Constraint("Tangent", 45, 2, 46, 1),
    Sketcher.Constraint("Tangent", 46, 2, 47, 1),
    Sketcher.Constraint("Tangent", 47, 2, 40, 1),
    Sketcher.Constraint("Vertical", 0),
    Sketcher.Constraint("Horizontal", 2),
    Sketcher.Constraint("Vertical", 4),
    Sketcher.Constraint("Horizontal", 6),
    Sketcher.Constraint("Horizontal", 8),
    Sketcher.Constraint("Vertical", 10),
    Sketcher.Constraint("Horizontal", 12),
    Sketcher.Constraint("Vertical", 14),
    Sketcher.Constraint("Horizontal", 16),
    Sketcher.Constraint("Vertical", 18),
    Sketcher.Constraint("Horizontal", 20),
    Sketcher.Constraint("Vertical", 22),
    Sketcher.Constraint("Horizontal", 24),
    Sketcher.Constraint("Vertical", 26),
    Sketcher.Constraint("Horizontal", 28),
    Sketcher.Constraint("Vertical", 30),
    Sketcher.Constraint("Horizontal", 32),
    Sketcher.Constraint("Vertical", 34),
    Sketcher.Constraint("Horizontal", 36),
    Sketcher.Constraint("Vertical", 38),
    Sketcher.Constraint("Horizontal", 40),
    Sketcher.Constraint("Vertical", 42),
    Sketcher.Constraint("Horizontal", 44),
    Sketcher.Constraint("Vertical", 46),
    Sketcher.Constraint("Equal", 1, 3),
    Sketcher.Constraint("Equal", 3, 5),
    Sketcher.Constraint("Equal", 5, 7),
    Sketcher.Constraint("Equal", 7, 9),
    Sketcher.Constraint("Equal", 9, 11),
    Sketcher.Constraint("Equal", 11, 13),
    Sketcher.Constraint("Equal", 13, 15),
    Sketcher.Constraint("Equal", 15, 17),
    Sketcher.Constraint("Equal", 17, 19),
    Sketcher.Constraint("Equal", 19, 21),
    Sketcher.Constraint("Equal", 21, 23),
    Sketcher.Constraint("Equal", 23, 25),
    Sketcher.Constraint("Equal", 25, 27),
    Sketcher.Constraint("Equal", 27, 29),
    Sketcher.Constraint("Equal", 29, 31),
    Sketcher.Constraint("Equal", 31, 33),
    Sketcher.Constraint("Equal", 33, 35),
    Sketcher.Constraint("Equal", 35, 37),
    Sketcher.Constraint("Equal", 37, 39),
    Sketcher.Constraint("Equal", 39, 41),
    Sketcher.Constraint("Equal", 41, 43),
    Sketcher.Constraint("Equal", 43, 45),
    Sketcher.Constraint("Equal", 45, 47),
    Sketcher.Constraint("Horizontal", 15, 3, 25, 3),
    Sketcher.Constraint("Horizontal", 13, 3, 27, 3),
    Sketcher.Constraint("Horizontal", 23, 3, 33, 3),
    Sketcher.Constraint("Horizontal", 21, 3, 35, 3),
    Sketcher.Constraint("Horizontal", 3, 3, 41, 3),
    Sketcher.Constraint("Horizontal", 7, 3, 43, 3),
    Sketcher.Constraint("Vertical", 5, 3, 9, 3),
    Sketcher.Constraint("Vertical", 7, 3, 13, 3),
    Sketcher.Constraint("Vertical", 11, 3, 17, 3),
    Sketcher.Constraint("Vertical", 15, 3, 21, 3),
    Sketcher.Constraint("Vertical", 27, 3, 33, 3),
    Sketcher.Constraint("Vertical", 31, 3, 37, 3),
    Sketcher.Constraint("Vertical", 35, 3, 41, 3),
    Sketcher.Constraint("Vertical", 39, 3, 45, 3),
    Sketcher.Constraint("Equal", 20, 24),
    Sketcher.Constraint("Equal", 4, 10),
    Sketcher.Constraint("Equal", 14, 18),
    Sketcher.Constraint("Radius", 1, Q("2 mm")),
    Sketcher.Constraint("DistanceX", 2, 2, 2, 1, Q("4 mm")),
    Sketcher.Constraint("DistanceY", 0, 1, 0, 2, Q("24 mm")),
    Sketcher.Constraint("DistanceX", -1, 1, 1, 3, Q("24 mm")),
    Sketcher.Constraint("DistanceY", 1, 3, -1, 1, Q("8 mm")),
    Sketcher.Constraint("DistanceY", 17, 3, -1, 1, Q("75 mm")),
    Sketcher.Constraint("DistanceX", -1, 1, 25, 3, Q("7 mm")),
    Sketcher.Constraint("DistanceY", 9, 3, -1, 1, Q("41.5 mm")),
])
pocket3 = doc.addObject("PartDesign::Pocket", "Pocket002")
body.addObject(pocket3)
pocket3.Profile = sketch6
pocket3.Type = "ThroughAll"

doc.recompute()
